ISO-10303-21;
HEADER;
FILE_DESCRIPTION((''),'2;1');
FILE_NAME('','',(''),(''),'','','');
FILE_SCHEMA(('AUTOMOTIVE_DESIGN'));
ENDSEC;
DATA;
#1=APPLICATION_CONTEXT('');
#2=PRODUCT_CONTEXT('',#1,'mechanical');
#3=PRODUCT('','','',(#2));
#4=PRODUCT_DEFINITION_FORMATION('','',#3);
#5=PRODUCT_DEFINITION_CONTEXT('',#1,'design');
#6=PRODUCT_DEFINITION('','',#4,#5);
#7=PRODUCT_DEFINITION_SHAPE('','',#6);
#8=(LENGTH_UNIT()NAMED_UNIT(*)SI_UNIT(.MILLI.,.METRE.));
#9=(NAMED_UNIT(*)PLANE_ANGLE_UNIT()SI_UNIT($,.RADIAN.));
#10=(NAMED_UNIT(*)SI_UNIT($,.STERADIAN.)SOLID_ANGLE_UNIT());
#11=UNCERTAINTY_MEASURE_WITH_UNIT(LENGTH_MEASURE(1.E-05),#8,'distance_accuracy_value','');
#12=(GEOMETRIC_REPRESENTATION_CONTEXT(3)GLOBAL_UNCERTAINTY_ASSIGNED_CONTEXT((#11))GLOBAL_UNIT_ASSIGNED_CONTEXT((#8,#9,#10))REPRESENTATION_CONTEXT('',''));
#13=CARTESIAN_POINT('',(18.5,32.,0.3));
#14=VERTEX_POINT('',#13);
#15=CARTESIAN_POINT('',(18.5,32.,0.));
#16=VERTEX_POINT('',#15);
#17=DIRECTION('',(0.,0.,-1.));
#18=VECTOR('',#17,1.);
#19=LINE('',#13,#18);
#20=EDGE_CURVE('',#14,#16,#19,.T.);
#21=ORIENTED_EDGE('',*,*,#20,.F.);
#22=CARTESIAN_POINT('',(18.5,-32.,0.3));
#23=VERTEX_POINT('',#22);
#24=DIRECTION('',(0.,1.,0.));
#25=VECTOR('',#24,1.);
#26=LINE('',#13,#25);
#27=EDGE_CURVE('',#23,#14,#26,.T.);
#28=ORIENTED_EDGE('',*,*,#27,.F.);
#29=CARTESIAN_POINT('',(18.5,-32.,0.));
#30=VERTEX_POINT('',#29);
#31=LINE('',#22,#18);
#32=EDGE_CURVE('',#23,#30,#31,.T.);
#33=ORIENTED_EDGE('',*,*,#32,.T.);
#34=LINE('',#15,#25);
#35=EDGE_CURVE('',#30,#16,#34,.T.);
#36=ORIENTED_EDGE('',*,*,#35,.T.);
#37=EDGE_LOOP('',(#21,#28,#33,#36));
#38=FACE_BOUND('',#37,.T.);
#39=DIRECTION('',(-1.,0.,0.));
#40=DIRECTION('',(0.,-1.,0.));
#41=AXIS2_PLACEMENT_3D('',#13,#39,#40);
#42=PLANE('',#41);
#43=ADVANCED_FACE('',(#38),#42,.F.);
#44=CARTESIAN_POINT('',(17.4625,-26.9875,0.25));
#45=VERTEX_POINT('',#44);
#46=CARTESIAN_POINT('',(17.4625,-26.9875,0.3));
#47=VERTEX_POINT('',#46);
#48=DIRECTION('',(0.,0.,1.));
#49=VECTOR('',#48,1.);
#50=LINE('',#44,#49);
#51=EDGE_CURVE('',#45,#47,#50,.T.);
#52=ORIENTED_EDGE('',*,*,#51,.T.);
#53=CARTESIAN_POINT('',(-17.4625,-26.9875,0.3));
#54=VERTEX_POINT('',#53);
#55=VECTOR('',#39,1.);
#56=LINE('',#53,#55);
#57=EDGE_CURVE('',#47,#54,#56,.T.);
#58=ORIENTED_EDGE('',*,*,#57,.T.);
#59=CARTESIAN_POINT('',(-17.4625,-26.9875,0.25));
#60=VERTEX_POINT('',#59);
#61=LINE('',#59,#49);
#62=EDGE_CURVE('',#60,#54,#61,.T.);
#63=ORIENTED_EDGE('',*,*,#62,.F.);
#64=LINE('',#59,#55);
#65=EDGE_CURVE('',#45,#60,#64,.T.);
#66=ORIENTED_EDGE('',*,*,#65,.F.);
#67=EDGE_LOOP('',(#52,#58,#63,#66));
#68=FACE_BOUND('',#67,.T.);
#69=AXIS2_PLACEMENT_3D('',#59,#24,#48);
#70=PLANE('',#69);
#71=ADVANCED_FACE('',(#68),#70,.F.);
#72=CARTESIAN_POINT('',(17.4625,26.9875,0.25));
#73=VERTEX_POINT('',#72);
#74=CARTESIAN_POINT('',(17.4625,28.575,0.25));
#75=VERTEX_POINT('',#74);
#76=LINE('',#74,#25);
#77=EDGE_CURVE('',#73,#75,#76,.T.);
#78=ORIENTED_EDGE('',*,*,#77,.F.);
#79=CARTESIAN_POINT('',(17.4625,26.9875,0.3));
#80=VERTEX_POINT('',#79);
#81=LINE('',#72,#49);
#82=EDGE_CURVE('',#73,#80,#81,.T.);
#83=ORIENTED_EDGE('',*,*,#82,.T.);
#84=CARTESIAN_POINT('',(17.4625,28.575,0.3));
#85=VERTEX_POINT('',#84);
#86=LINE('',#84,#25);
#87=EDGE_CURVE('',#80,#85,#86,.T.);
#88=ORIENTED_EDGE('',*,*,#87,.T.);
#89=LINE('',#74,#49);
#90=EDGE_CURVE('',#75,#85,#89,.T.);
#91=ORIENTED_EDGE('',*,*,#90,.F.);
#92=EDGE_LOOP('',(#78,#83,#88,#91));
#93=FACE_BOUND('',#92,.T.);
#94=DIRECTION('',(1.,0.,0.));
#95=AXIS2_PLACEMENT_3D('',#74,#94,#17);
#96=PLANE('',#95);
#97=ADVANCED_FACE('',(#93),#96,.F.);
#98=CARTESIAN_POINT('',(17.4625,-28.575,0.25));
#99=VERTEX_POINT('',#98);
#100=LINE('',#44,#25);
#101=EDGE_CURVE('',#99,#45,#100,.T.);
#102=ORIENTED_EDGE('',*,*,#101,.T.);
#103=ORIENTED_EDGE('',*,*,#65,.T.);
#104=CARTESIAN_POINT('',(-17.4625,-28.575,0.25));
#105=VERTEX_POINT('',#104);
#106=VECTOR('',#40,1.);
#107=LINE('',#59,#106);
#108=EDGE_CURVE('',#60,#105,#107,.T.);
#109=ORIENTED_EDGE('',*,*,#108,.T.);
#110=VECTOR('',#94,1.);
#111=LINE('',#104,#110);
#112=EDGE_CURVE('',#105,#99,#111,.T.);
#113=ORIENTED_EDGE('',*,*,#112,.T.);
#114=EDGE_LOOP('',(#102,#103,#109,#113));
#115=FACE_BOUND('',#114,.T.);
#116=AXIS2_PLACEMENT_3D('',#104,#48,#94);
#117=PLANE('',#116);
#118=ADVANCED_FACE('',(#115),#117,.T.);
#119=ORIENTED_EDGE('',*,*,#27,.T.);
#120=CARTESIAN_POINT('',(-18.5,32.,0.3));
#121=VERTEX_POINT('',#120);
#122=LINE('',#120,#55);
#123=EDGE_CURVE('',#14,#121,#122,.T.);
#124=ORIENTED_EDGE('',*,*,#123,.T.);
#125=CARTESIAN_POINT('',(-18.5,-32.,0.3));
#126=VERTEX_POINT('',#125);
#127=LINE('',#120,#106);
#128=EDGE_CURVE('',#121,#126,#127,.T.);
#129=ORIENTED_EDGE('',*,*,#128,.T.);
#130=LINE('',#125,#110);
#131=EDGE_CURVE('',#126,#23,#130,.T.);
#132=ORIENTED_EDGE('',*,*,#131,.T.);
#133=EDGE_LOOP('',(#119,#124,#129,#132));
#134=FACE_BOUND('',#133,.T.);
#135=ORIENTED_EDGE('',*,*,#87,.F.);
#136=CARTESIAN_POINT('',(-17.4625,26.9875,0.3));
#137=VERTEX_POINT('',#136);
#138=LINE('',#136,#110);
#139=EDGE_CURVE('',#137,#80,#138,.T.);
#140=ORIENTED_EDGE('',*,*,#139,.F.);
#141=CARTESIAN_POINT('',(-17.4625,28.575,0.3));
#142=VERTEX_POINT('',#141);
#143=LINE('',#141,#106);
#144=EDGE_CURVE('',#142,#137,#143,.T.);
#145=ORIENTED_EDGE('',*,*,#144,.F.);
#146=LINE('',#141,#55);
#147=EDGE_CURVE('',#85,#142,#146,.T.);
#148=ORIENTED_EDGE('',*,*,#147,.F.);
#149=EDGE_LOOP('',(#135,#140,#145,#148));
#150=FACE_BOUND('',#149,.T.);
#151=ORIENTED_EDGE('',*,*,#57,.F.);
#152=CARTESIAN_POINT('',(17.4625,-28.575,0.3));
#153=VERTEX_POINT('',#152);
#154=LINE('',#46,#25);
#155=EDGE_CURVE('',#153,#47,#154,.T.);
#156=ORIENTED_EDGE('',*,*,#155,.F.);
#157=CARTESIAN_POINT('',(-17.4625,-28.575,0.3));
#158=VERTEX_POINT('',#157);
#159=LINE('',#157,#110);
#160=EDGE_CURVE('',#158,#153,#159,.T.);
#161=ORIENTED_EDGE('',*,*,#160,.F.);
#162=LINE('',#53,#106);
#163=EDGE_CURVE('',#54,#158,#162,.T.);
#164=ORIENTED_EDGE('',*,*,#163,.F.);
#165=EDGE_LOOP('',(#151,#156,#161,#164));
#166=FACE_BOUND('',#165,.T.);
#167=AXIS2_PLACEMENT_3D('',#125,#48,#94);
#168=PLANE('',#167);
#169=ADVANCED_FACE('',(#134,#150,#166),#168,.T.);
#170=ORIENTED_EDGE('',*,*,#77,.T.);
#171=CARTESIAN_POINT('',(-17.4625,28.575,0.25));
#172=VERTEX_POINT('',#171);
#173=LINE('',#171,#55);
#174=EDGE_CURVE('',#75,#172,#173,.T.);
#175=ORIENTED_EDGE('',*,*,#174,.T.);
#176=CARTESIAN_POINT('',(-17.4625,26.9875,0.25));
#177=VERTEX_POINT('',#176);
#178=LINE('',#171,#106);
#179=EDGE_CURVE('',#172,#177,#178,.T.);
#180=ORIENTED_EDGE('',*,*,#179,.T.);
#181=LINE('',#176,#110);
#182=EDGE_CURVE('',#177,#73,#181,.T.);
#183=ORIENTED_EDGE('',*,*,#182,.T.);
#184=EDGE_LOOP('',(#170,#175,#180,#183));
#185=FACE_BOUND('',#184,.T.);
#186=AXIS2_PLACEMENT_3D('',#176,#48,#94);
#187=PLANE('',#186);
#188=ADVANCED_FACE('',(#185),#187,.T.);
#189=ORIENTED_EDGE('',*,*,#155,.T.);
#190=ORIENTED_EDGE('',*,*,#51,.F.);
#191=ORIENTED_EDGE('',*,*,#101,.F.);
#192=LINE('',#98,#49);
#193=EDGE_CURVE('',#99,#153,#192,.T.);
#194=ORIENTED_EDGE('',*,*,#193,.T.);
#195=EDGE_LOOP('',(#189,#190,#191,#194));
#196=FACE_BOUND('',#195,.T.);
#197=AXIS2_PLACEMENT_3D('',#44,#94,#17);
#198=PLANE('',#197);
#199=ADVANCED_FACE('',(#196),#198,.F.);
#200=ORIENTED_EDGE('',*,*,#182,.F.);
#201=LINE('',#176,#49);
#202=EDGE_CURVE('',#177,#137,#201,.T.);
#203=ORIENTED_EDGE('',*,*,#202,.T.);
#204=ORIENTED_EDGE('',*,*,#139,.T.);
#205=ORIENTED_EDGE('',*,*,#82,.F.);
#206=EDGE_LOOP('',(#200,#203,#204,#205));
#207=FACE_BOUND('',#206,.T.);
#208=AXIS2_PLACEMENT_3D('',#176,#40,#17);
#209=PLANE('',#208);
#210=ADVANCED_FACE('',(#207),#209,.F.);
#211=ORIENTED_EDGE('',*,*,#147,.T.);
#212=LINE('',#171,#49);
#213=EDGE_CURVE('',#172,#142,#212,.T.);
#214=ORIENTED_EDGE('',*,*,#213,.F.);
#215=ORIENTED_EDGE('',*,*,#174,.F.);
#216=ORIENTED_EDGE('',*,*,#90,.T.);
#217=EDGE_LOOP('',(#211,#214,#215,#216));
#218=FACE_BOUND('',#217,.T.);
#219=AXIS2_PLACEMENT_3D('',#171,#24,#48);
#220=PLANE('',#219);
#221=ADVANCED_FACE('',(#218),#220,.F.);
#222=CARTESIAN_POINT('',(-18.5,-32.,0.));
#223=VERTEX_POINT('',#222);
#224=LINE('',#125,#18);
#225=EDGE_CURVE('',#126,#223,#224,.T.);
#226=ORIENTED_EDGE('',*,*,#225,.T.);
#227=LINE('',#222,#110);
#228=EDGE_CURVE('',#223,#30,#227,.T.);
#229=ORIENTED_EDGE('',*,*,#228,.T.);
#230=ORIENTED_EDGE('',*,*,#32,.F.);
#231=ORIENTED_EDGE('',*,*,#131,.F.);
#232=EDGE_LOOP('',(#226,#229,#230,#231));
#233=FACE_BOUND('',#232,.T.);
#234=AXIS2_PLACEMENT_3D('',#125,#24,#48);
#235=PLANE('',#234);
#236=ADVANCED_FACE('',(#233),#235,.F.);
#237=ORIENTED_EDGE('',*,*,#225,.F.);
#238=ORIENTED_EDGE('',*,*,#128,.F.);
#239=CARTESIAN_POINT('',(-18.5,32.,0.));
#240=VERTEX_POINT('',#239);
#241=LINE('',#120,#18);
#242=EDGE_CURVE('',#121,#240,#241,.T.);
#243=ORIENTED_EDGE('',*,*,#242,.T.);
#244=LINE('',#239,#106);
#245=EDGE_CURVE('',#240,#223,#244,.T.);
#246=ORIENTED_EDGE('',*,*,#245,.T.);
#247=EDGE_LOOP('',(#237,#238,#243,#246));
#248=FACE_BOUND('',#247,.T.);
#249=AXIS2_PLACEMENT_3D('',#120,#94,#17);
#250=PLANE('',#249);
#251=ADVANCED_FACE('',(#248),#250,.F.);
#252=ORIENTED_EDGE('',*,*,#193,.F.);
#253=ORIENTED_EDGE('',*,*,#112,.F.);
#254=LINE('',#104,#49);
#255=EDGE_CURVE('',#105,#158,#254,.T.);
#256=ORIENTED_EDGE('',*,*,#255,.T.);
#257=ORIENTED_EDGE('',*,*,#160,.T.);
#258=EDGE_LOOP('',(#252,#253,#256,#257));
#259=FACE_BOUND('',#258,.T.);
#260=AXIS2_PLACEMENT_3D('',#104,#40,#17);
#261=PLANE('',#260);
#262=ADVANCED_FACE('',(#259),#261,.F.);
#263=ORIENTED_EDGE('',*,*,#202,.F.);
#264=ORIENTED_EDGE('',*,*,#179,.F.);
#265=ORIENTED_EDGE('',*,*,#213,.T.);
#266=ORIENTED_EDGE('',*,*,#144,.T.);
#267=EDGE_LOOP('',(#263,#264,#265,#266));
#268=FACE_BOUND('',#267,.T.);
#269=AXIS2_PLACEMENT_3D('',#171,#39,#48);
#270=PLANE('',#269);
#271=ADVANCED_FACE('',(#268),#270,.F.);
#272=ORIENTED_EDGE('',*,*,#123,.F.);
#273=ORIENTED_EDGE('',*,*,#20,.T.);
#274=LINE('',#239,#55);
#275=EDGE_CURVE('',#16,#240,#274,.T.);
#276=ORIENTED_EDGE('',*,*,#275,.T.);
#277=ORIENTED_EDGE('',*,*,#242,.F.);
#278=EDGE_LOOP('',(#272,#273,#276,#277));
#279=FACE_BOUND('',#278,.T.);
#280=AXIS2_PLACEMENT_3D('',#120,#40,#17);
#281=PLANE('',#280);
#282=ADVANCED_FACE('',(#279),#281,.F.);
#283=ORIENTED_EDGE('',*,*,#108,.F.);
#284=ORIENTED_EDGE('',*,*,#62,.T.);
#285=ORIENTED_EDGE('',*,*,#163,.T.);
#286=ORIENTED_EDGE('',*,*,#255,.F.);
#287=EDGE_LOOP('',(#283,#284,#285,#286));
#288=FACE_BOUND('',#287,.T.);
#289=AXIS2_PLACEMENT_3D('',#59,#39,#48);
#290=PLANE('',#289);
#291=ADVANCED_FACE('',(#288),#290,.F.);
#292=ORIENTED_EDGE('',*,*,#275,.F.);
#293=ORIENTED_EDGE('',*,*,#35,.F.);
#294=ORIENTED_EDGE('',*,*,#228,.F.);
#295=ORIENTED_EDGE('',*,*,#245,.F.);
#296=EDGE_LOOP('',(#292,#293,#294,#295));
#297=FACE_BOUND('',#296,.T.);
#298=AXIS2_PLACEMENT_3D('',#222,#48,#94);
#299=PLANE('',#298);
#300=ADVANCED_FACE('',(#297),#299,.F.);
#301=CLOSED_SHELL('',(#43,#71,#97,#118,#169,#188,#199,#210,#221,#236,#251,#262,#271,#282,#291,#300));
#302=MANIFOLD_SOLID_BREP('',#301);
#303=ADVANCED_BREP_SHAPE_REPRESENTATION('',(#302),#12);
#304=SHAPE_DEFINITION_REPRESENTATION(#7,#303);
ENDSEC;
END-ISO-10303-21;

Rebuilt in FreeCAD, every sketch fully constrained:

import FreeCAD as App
import Part
import Sketcher


def add_polygon(sketch, points):
    """Adds a closed chain of lines whose ends are joined by coincident constraints."""
    first, n = sketch.GeometryCount, len(points)
    for a, b in zip(points, points[1:] + points[:1]):
        sketch.addGeometry(Part.LineSegment(App.Vector(*a, 0), App.Vector(*b, 0)), False)
    for i in range(n):
        sketch.addConstraint(Sketcher.Constraint("Coincident", first + i, 2, first + (i + 1) % n, 1))

doc = App.newDocument("Part")
body = doc.addObject("PartDesign::Body", "Body")

# Sketch on XY plane
sketch1 = doc.addObject("Sketcher::SketchObject", "Sketch")
body.addObject(sketch1)
sketch1.AttachmentSupport = (doc.XY_Plane, [""])
sketch1.MapMode = "FlatFace"
add_polygon(sketch1, [(-18, 32), (-18, -32), (18, -32), (18, 32)])  # lines 0-3
sketch1.addConstraint([
    Sketcher.Constraint("Vertical", 0),
    Sketcher.Constraint("Horizontal", 1),
    Sketcher.Constraint("Vertical", 2),
    Sketcher.Constraint("Horizontal", 3),
    Sketcher.Constraint("Symmetric", 0, 2, 2, 2, -1, 1),
    Sketcher.Constraint("DistanceX", 1, 1, 1, 2, 37.0),
    Sketcher.Constraint("DistanceY", 0, 2, 0, 1, 64.0),
])
pad1 = doc.addObject("PartDesign::Pad", "Pad")
body.addObject(pad1)
pad1.Profile = sketch1
pad1.Length = 0.3

# Sketch on XY plane
sketch2 = doc.addObject("Sketcher::SketchObject", "Sketch001")
body.addObject(sketch2)
sketch2.AttachmentSupport = (doc.XY_Plane, [""])
sketch2.MapMode = "FlatFace"
sketch2.AttachmentOffset = App.Placement(App.Vector(0, 0, 0.3), App.Rotation())
add_polygon(sketch2, [(-17.5, 28.6), (-17.5, 27), (17.5, 27), (17.5, 28.6)])  # lines 0-3
add_polygon(sketch2, [(-17.5, -27), (-17.5, -28.6), (17.5, -28.6), (17.5, -27)])  # lines 4-7
sketch2.addConstraint([
    Sketcher.Constraint("Vertical", 0),
    Sketcher.Constraint("Horizontal", 1),
    Sketcher.Constraint("Vertical", 2),
    Sketcher.Constraint("Horizontal", 3),
    Sketcher.Constraint("Vertical", 4),
    Sketcher.Constraint("Horizontal", 5),
    Sketcher.Constraint("Vertical", 6),
    Sketcher.Constraint("Horizontal", 7),
    Sketcher.Constraint("Symmetric", 2, 2, 4, 2, -1, 1),
    Sketcher.Constraint("Symmetric", 0, 2, 6, 2, -1, 1),
    Sketcher.Constraint("Vertical", 3, 2, 4, 2),
    Sketcher.Constraint("DistanceX", 1, 1, 1, 2, 34.925),
    Sketcher.Constraint("DistanceY", 4, 2, 3, 2, 57.15),
    Sketcher.Constraint("DistanceY", 0, 2, 0, 1, 1.5875),
])
pocket1 = doc.addObject("PartDesign::Pocket", "Pocket")
body.addObject(pocket1)
pocket1.Profile = sketch2
pocket1.Length = 0.05

doc.recompute()
